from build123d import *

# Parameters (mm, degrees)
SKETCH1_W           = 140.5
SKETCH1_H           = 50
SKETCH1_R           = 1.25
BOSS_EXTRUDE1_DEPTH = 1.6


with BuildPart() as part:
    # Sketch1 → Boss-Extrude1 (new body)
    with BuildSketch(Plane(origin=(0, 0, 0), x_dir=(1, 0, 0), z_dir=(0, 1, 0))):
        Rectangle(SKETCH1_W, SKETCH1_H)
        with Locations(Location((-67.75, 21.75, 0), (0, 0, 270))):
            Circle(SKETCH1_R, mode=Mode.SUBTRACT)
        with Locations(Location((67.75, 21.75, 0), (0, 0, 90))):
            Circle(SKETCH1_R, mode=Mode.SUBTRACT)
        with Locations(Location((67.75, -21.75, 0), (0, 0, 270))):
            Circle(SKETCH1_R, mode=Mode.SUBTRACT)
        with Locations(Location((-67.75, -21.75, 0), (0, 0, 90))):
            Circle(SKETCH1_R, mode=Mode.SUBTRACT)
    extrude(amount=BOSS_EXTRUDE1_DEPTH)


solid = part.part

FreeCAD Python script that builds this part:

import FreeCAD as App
import Part
import Sketcher
from FreeCAD import Vector


def add_polygon(sketch, points):
    """Adds a closed chain of lines whose ends are joined by coincident constraints."""
    first, n = sketch.GeometryCount, len(points)
    for a, b in zip(points, points[1:] + points[:1]):
        sketch.addGeometry(Part.LineSegment(App.Vector(*a, 0), App.Vector(*b, 0)), False)
    for i in range(n):
        sketch.addConstraint(Sketcher.Constraint("Coincident", first + i, 2, first + (i + 1) % n, 1))

doc = App.newDocument("Part")
params = doc.addObject("Spreadsheet::Sheet", "Params")
for row, (alias, value) in enumerate([
    ("sketch1_diameter", "2.5 mm"),
    ("sketch1_height", "50 mm"),
    ("sketch1_width", "140.5 mm"),
    ("pad1_length", "1.6 mm"),
], start=1):
    params.set(f"A{row}", alias)
    params.set(f"B{row}", "=" + value)
    params.setAlias(f"B{row}", alias)

body = doc.addObject("PartDesign::Body", "Body")

sketch1 = body.newObject("Sketcher::SketchObject", "Sketch")
sketch1.AttachmentSupport = (doc.getObject("XZ_Plane"), [""])
sketch1.MapMode = "FlatFace"
add_polygon(sketch1, [(-70.2, -25), (-70.2, 25), (70.2, 25), (70.2, -25)])
sketch1.addGeometry(Part.Circle(Vector(-67.8, 21.8, 0), Vector(0, 0, 1), 1.2), False)
sketch1.addGeometry(Part.Circle(Vector(67.8, 21.8, 0), Vector(0, 0, 1), 1.2), False)
sketch1.addGeometry(Part.Circle(Vector(-67.8, -21.8, 0), Vector(0, 0, 1), 1.2), False)
sketch1.addGeometry(Part.Circle(Vector(67.8, -21.8, 0), Vector(0, 0, 1), 1.2), False)
sketch1.addConstraint(Sketcher.Constraint("Vertical", 0))
sketch1.addConstraint(Sketcher.Constraint("Horizontal", 1))
sketch1.addConstraint(Sketcher.Constraint("Vertical", 2))
sketch1.addConstraint(Sketcher.Constraint("Horizontal", 3))
sketch1.addConstraint(Sketcher.Constraint("Equal", 4, 5))
sketch1.addConstraint(Sketcher.Constraint("Equal", 5, 6))
sketch1.addConstraint(Sketcher.Constraint("Equal", 6, 7))
sketch1.addConstraint(Sketcher.Constraint("Symmetric", 5, 3, 6, 3, -1, 1))
sketch1.addConstraint(Sketcher.Constraint("Symmetric", 4, 3, 7, 3, -1, 1))
sketch1.addConstraint(Sketcher.Constraint("Symmetric", 0, 2, 2, 2, -1, 1))
sketch1.addConstraint(Sketcher.Constraint("Symmetric", 4, 3, 5, 3, -2))
sketch1.addConstraint(Sketcher.Constraint("Diameter", 4, 2.5))
sketch1.addConstraint(Sketcher.Constraint("DistanceY", 0, 1, 0, 2, 50.0))
sketch1.addConstraint(Sketcher.Constraint("DistanceX", 1, 1, 1, 2, 140.5))
sketch1.addConstraint(Sketcher.Constraint("DistanceX", 0, 2, 5, 3, 138.0))
sketch1.addConstraint(Sketcher.Constraint("DistanceY", 6, 3, 4, 3, 43.5))
sketch1.setExpression("Constraints[15]", "Params.sketch1_diameter")
sketch1.setExpression("Constraints[16]", "Params.sketch1_height")
sketch1.setExpression("Constraints[17]", "Params.sketch1_width")
pad1 = body.newObject("PartDesign::Pad", "Pad")
pad1.Profile = sketch1
pad1.setExpression("Length", "Params.pad1_length")
pad1.Reversed = True

doc.recompute()
